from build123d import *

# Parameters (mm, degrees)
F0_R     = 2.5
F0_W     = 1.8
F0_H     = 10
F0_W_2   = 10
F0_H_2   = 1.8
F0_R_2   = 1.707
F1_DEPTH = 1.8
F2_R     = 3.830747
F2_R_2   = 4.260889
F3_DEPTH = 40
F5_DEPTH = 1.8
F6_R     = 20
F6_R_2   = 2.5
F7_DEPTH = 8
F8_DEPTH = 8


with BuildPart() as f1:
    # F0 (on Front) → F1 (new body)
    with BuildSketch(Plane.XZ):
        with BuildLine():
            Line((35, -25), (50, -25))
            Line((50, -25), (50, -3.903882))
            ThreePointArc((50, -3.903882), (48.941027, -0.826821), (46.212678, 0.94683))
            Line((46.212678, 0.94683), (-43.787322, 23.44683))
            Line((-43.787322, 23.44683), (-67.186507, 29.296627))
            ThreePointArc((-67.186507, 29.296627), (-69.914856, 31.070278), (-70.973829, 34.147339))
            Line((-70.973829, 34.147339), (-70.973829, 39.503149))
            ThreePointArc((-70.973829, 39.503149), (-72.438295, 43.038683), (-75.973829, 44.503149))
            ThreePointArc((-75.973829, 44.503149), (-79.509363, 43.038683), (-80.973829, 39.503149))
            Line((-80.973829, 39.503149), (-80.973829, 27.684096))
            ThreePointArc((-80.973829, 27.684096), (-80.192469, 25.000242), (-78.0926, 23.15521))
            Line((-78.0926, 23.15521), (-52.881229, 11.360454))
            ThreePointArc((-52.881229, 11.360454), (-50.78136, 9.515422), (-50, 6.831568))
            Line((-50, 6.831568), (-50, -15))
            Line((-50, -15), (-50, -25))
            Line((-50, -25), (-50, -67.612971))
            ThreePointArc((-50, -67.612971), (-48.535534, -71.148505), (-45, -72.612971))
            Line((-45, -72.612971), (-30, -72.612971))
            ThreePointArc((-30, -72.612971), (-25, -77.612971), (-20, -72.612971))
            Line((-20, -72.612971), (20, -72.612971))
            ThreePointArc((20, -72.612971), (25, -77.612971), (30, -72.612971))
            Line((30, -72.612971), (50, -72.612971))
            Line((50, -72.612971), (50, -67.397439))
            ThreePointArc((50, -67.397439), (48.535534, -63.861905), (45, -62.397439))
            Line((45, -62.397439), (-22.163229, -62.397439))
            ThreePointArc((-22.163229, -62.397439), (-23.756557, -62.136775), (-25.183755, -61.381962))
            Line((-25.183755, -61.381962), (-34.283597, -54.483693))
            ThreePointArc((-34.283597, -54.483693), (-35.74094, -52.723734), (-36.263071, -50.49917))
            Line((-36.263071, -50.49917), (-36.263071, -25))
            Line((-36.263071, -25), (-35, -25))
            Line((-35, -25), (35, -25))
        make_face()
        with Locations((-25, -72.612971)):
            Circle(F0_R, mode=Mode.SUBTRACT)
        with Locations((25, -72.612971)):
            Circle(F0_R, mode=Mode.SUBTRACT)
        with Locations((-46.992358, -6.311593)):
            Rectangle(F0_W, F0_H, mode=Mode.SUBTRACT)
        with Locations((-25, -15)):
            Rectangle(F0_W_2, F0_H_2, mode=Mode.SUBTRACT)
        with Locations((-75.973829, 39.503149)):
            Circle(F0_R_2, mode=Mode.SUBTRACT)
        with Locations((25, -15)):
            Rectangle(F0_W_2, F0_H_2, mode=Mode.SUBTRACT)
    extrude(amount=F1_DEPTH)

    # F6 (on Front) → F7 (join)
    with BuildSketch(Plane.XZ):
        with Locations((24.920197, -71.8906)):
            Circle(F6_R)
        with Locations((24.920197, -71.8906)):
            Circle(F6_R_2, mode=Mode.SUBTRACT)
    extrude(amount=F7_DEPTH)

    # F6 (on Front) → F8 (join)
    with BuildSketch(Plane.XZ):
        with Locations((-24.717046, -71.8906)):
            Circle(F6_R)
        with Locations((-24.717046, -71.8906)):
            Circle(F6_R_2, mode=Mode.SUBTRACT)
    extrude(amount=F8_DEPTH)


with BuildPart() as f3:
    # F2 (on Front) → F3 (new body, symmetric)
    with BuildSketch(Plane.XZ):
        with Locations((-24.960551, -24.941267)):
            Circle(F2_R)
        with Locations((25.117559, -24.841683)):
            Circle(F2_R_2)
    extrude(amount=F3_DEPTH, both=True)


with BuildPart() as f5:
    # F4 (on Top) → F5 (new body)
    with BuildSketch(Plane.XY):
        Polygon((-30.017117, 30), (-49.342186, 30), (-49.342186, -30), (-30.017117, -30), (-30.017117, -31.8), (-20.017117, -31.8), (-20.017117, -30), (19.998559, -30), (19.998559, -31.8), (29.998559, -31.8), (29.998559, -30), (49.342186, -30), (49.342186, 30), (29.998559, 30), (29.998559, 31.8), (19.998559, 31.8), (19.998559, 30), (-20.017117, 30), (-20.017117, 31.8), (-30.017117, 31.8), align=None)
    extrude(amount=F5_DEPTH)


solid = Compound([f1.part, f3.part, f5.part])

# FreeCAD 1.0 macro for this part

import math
import FreeCAD as App
import Part
import Sketcher

V = App.Vector


def add_polygon(sketch, points):
    """Adds a closed chain of lines whose ends are joined by coincident constraints."""
    first, n = sketch.GeometryCount, len(points)
    for a, b in zip(points, points[1:] + points[:1]):
        sketch.addGeometry(Part.LineSegment(App.Vector(*a, 0), App.Vector(*b, 0)), False)
    for i in range(n):
        sketch.addConstraint(Sketcher.Constraint("Coincident", first + i, 2, first + (i + 1) % n, 1))

doc = App.newDocument("Part")
body = doc.addObject("PartDesign::Body", "Body")

sketch1 = body.newObject("Sketcher::SketchObject", "Sketch")
sketch1.AttachmentSupport = (doc.getObject("XZ_Plane"), [""])
sketch1.MapMode = "FlatFace"
sketch1.addGeometry(Part.LineSegment(V(50, -25, 0), V(50, -3.9, 0)), False)
sketch1.addGeometry(Part.ArcOfCircle(Part.Circle(V(45, -3.9, 0), V(0, 0, 1), 5), math.radians(0), math.radians(76)), False)
sketch1.addGeometry(Part.LineSegment(V(46.2, 0.9, 0), V(-43.8, 23.4, 0)), False)
sketch1.addGeometry(Part.LineSegment(V(-43.8, 23.4, 0), V(-67.2, 29.3, 0)), False)
sketch1.addGeometry(Part.ArcOfCircle(Part.Circle(V(-66, 34.1, 0), V(0, 0, 1), 5), math.radians(-180), math.radians(-104)), False)
sketch1.addGeometry(Part.LineSegment(V(-71, 34.1, 0), V(-71, 39.5, 0)), False)
sketch1.addGeometry(Part.ArcOfCircle(Part.Circle(V(-76, 39.5, 0), V(0, 0, 1), 5), math.radians(0), math.radians(90)), False)
sketch1.addGeometry(Part.ArcOfCircle(Part.Circle(V(-76, 39.5, 0), V(0, 0, 1), 5), math.radians(90), math.radians(180)), False)
sketch1.addGeometry(Part.LineSegment(V(-81, 39.5, 0), V(-81, 27.7, 0)), False)
sketch1.addGeometry(Part.ArcOfCircle(Part.Circle(V(-76, 27.7, 0), V(0, 0, 1), 5), math.radians(-180), math.radians(-115)), False)
sketch1.addGeometry(Part.LineSegment(V(-78.1, 23.2, 0), V(-52.9, 11.4, 0)), False)
sketch1.addGeometry(Part.ArcOfCircle(Part.Circle(V(-55, 6.8, 0), V(0, 0, 1), 5), math.radians(0), math.radians(65)), False)
sketch1.addGeometry(Part.LineSegment(V(-50, 6.8, 0), V(-50, -67.6, 0)), False)
sketch1.addGeometry(Part.ArcOfCircle(Part.Circle(V(-45, -67.6, 0), V(0, 0, 1), 5), math.radians(180), math.radians(270)), False)
sketch1.addGeometry(Part.LineSegment(V(-45, -72.6, 0), V(-30, -72.6, 0)), False)
sketch1.addGeometry(Part.ArcOfCircle(Part.Circle(V(-25, -72.6, 0), V(0, 0, 1), 5), math.radians(180), math.radians(360)), False)
sketch1.addGeometry(Part.LineSegment(V(-20, -72.6, 0), V(20, -72.6, 0)), False)
sketch1.addGeometry(Part.ArcOfCircle(Part.Circle(V(25, -72.6, 0), V(0, 0, 1), 5), math.radians(180), math.radians(360)), False)
sketch1.addGeometry(Part.LineSegment(V(30, -72.6, 0), V(50, -72.6, 0)), False)
sketch1.addGeometry(Part.LineSegment(V(50, -72.6, 0), V(50, -67.4, 0)), False)
sketch1.addGeometry(Part.ArcOfCircle(Part.Circle(V(45, -67.4, 0), V(0, 0, 1), 5), math.radians(0), math.radians(90)), False)
sketch1.addGeometry(Part.LineSegment(V(45, -62.4, 0), V(-22.2, -62.4, 0)), False)
sketch1.addGeometry(Part.ArcOfCircle(Part.Circle(V(-22.2, -57.4, 0), V(0, 0, 1), 5), math.radians(-127), math.radians(-90)), False)
sketch1.addGeometry(Part.LineSegment(V(-25.2, -61.4, 0), V(-34.3, -54.5, 0)), False)
sketch1.addGeometry(Part.ArcOfCircle(Part.Circle(V(-31.3, -50.5, 0), V(0, 0, 1), 5), math.radians(-180), math.radians(-127)), False)
sketch1.addGeometry(Part.LineSegment(V(-36.3, -50.5, 0), V(-36.3, -25, 0)), False)
sketch1.addGeometry(Part.LineSegment(V(-36.3, -25, 0), V(50, -25, 0)), False)
sketch1.addGeometry(Part.Circle(V(-25, -72.6, 0), V(0, 0, 1), 2.5), False)
sketch1.addGeometry(Part.Circle(V(25, -72.6, 0), V(0, 0, 1), 2.5), False)
add_polygon(sketch1, [(-46.1, -11.3), (-47.9, -11.3), (-47.9, -1.3), (-46.1, -1.3)])
add_polygon(sketch1, [(-20, -15.9), (-30, -15.9), (-30, -14.1), (-20, -14.1)])
sketch1.addGeometry(Part.Circle(V(-76, 39.5, 0), V(0, 0, 1), 1.7), False)
add_polygon(sketch1, [(30, -15.9), (20, -15.9), (20, -14.1), (30, -14.1)])
sketch1.addConstraint(Sketcher.Constraint("Tangent", 0, 2, 1, 1))
sketch1.addConstraint(Sketcher.Constraint("Tangent", 1, 2, 2, 1))
sketch1.addConstraint(Sketcher.Constraint("Coincident", 2, 2, 3, 1))
sketch1.addConstraint(Sketcher.Constraint("Tangent", 3, 2, 4, 2))
sketch1.addConstraint(Sketcher.Constraint("Tangent", 4, 1, 5, 1))
sketch1.addConstraint(Sketcher.Constraint("Tangent", 5, 2, 6, 1))
sketch1.addConstraint(Sketcher.Constraint("Tangent", 6, 2, 7, 1))
sketch1.addConstraint(Sketcher.Constraint("Tangent", 7, 2, 8, 1))
sketch1.addConstraint(Sketcher.Constraint("Tangent", 8, 2, 9, 1))
sketch1.addConstraint(Sketcher.Constraint("Tangent", 9, 2, 10, 1))
sketch1.addConstraint(Sketcher.Constraint("Tangent", 10, 2, 11, 2))
sketch1.addConstraint(Sketcher.Constraint("Tangent", 11, 1, 12, 1))
sketch1.addConstraint(Sketcher.Constraint("Tangent", 12, 2, 13, 1))
sketch1.addConstraint(Sketcher.Constraint("Tangent", 13, 2, 14, 1))
sketch1.addConstraint(Sketcher.Constraint("Coincident", 14, 2, 15, 1))
sketch1.addConstraint(Sketcher.Constraint("Coincident", 15, 2, 16, 1))
sketch1.addConstraint(Sketcher.Constraint("Coincident", 16, 2, 17, 1))
sketch1.addConstraint(Sketcher.Constraint("Coincident", 17, 2, 18, 1))
sketch1.addConstraint(Sketcher.Constraint("Coincident", 18, 2, 19, 1))
sketch1.addConstraint(Sketcher.Constraint("Tangent", 19, 2, 20, 1))
sketch1.addConstraint(Sketcher.Constraint("Tangent", 20, 2, 21, 1))
sketch1.addConstraint(Sketcher.Constraint("Tangent", 21, 2, 22, 2))
sketch1.addConstraint(Sketcher.Constraint("Tangent", 22, 1, 23, 1))
sketch1.addConstraint(Sketcher.Constraint("Tangent", 23, 2, 24, 2))
sketch1.addConstraint(Sketcher.Constraint("Tangent", 24, 1, 25, 1))
sketch1.addConstraint(Sketcher.Constraint("Coincident", 25, 2, 26, 1))
sketch1.addConstraint(Sketcher.Constraint("Coincident", 26, 2, 0, 1))
sketch1.addConstraint(Sketcher.Constraint("Vertical", 0))
sketch1.addConstraint(Sketcher.Constraint("Vertical", 5))
sketch1.addConstraint(Sketcher.Constraint("Vertical", 8))
sketch1.addConstraint(Sketcher.Constraint("Vertical", 12))
sketch1.addConstraint(Sketcher.Constraint("Horizontal", 14))
sketch1.addConstraint(Sketcher.Constraint("Horizontal", 16))
sketch1.addConstraint(Sketcher.Constraint("Horizontal", 18))
sketch1.addConstraint(Sketcher.Constraint("Vertical", 19))
sketch1.addConstraint(Sketcher.Constraint("Horizontal", 21))
sketch1.addConstraint(Sketcher.Constraint("Vertical", 25))
sketch1.addConstraint(Sketcher.Constraint("Horizontal", 26))
sketch1.addConstraint(Sketcher.Constraint("Horizontal", 29))
sketch1.addConstraint(Sketcher.Constraint("Vertical", 30))
sketch1.addConstraint(Sketcher.Constraint("Horizontal", 31))
sketch1.addConstraint(Sketcher.Constraint("Vertical", 32))
sketch1.addConstraint(Sketcher.Constraint("Horizontal", 33))
sketch1.addConstraint(Sketcher.Constraint("Vertical", 34))
sketch1.addConstraint(Sketcher.Constraint("Horizontal", 35))
sketch1.addConstraint(Sketcher.Constraint("Vertical", 36))
sketch1.addConstraint(Sketcher.Constraint("Horizontal", 38))
sketch1.addConstraint(Sketcher.Constraint("Vertical", 39))
sketch1.addConstraint(Sketcher.Constraint("Horizontal", 40))
sketch1.addConstraint(Sketcher.Constraint("Vertical", 41))
sketch1.addConstraint(Sketcher.Constraint("Coincident", 27, 3, 15, 3))
sketch1.addConstraint(Sketcher.Constraint("Coincident", 28, 3, 17, 3))
sketch1.addConstraint(Sketcher.Constraint("Coincident", 37, 3, 6, 3))
sketch1.addConstraint(Sketcher.Constraint("Equal", 1, 4))
sketch1.addConstraint(Sketcher.Constraint("Equal", 4, 6))
sketch1.addConstraint(Sketcher.Constraint("Equal", 6, 7))
sketch1.addConstraint(Sketcher.Constraint("Equal", 9, 11))
sketch1.addConstraint(Sketcher.Constraint("Equal", 7, 13))
sketch1.addConstraint(Sketcher.Constraint("Equal", 13, 15))
sketch1.addConstraint(Sketcher.Constraint("Equal", 15, 17))
sketch1.addConstraint(Sketcher.Constraint("Equal", 17, 20))
sketch1.addConstraint(Sketcher.Constraint("Equal", 20, 22))
sketch1.addConstraint(Sketcher.Constraint("Equal", 27, 28))
sketch1.addConstraint(Sketcher.Constraint("Symmetric", 15, 3, 17, 3, -2))
sketch1.addConstraint(Sketcher.Constraint("Symmetric", 36, 2, 38, 2, -2))
sketch1.addConstraint(Sketcher.Constraint("Symmetric", 34, 2, 40, 2, -2))
sketch1.addConstraint(Sketcher.Constraint("Parallel", 2, 3))
sketch1.addConstraint(Sketcher.Constraint("Horizontal", 28, 3, 13, 2))
sketch1.addConstraint(Sketcher.Constraint("Horizontal", 14, 2, 15, 2))
sketch1.addConstraint(Sketcher.Constraint("Horizontal", 16, 2, 17, 2))
sketch1.addConstraint(Sketcher.Constraint("Vertical", 6, 3, 9, 3))
sketch1.addConstraint(Sketcher.Constraint("Vertical", 1, 3, 20, 3))
sketch1.addConstraint(Sketcher.Constraint("Vertical", 37, 3, 6, 2))
sketch1.addConstraint(Sketcher.Constraint("Vertical", 14, 2, 33, 2))
sketch1.addConstraint(Sketcher.Constraint("Vertical", 15, 2, 35, 2))
sketch1.addConstraint(Sketcher.Constraint("Equal", 40, 30))
sketch1.addConstraint(Sketcher.Constraint("Equal", 31, 34))
sketch1.addConstraint(Sketcher.Constraint("Diameter", 27, 5.0))
sketch1.addConstraint(Sketcher.Constraint("Radius", 1, 4.999999))
sketch1.addConstraint(Sketcher.Constraint("DistanceX", 14, 1, 14, 2, 15.0))
sketch1.addConstraint(Sketcher.Constraint("DistanceX", 16, 1, 16, 2, 40.0))
sketch1.addConstraint(Sketcher.Constraint("DistanceX", 18, 1, 18, 2, 20.0))
sketch1.addConstraint(Sketcher.Constraint("Diameter", 37, 3.414))
sketch1.addConstraint(Sketcher.Constraint("DistanceX", 29, 2, 29, 1, 1.8))
sketch1.addConstraint(Sketcher.Constraint("DistanceY", 25, 2, -1, 1, 25.0))
sketch1.addConstraint(Sketcher.Constraint("DistanceY", 33, 2, -1, 1, 15.9))
sketch1.addConstraint(Sketcher.Constraint("Radius", 24, 5.000004))
sketch1.addConstraint(Sketcher.Constraint("DistanceX", 21, 2, 21, 1, 67.163229))
sketch1.addConstraint(Sketcher.Constraint("DistanceX", 26, 1, 26, 2, 86.263071))
sketch1.addConstraint(Sketcher.Constraint("DistanceY", 0, 1, 0, 2, 21.096118))
sketch1.addConstraint(Sketcher.Constraint("DistanceY", 5, 1, 5, 2, 5.35581))
sketch1.addConstraint(Sketcher.Constraint("DistanceY", 12, 2, 12, 1, 74.444539))
sketch1.addConstraint(Sketcher.Constraint("DistanceY", 19, 1, 19, 2, 5.215532))
sketch1.addConstraint(Sketcher.Constraint("DistanceY", 25, 1, 25, 2, 25.49917))
sketch1.addConstraint(Sketcher.Constraint("DistanceX", 9, 2, -1, 1, 78.0926))
sketch1.addConstraint(Sketcher.Constraint("DistanceY", 17, 3, 1, 2, 73.559801))
sketch1.addConstraint(Sketcher.Constraint("Distance", 3, 24.119328))
sketch1.addConstraint(Sketcher.Constraint("DistanceY", 8, 2, 8, 1, 11.819053))
sketch1.addConstraint(Sketcher.Constraint("DistanceX", 4, 3, -1, 1, 65.97383))
sketch1.addConstraint(Sketcher.Constraint("DistanceX", 29, 2, -1, 1, 47.892358))
sketch1.addConstraint(Sketcher.Constraint("DistanceY", 29, 2, 11, 1, 18.143161))
pad1 = body.newObject("PartDesign::Pad", "Pad")
pad1.Profile = sketch1
pad1.Length = 1.8

sketch2 = body.newObject("Sketcher::SketchObject", "Sketch001")
sketch2.AttachmentSupport = (doc.getObject("XZ_Plane"), [""])
sketch2.MapMode = "FlatFace"
sketch2.addGeometry(Part.Circle(V(24.9, -71.9, 0), V(0, 0, 1), 20), False)
sketch2.addGeometry(Part.Circle(V(24.9, -71.9, 0), V(0, 0, 1), 2.5), False)
sketch2.addConstraint(Sketcher.Constraint("Coincident", 1, 3, 0, 3))
sketch2.addConstraint(Sketcher.Constraint("Diameter", 0, 40.0))
sketch2.addConstraint(Sketcher.Constraint("Diameter", 1, 5.0))
sketch2.addConstraint(Sketcher.Constraint("DistanceY", 0, 3, -1, 1, 71.8906))
sketch2.addConstraint(Sketcher.Constraint("DistanceX", -1, 1, 0, 3, 24.920197))
pad2 = body.newObject("PartDesign::Pad", "Pad001")
pad2.Profile = sketch2
pad2.Length = 8

sketch3 = body.newObject("Sketcher::SketchObject", "Sketch002")
sketch3.AttachmentSupport = (doc.getObject("XZ_Plane"), [""])
sketch3.MapMode = "FlatFace"
sketch3.addGeometry(Part.Circle(V(-24.7, -71.9, 0), V(0, 0, 1), 20), False)
sketch3.addGeometry(Part.Circle(V(-24.7, -71.9, 0), V(0, 0, 1), 2.5), False)
sketch3.addConstraint(Sketcher.Constraint("Coincident", 1, 3, 0, 3))
sketch3.addConstraint(Sketcher.Constraint("Diameter", 0, 40.0))
sketch3.addConstraint(Sketcher.Constraint("Diameter", 1, 5.0))
sketch3.addConstraint(Sketcher.Constraint("DistanceY", 0, 3, -1, 1, 71.8906))
sketch3.addConstraint(Sketcher.Constraint("DistanceX", 0, 3, -1, 1, 24.717046))
pad3 = body.newObject("PartDesign::Pad", "Pad002")
pad3.Profile = sketch3
pad3.Length = 8
body2 = doc.addObject("PartDesign::Body", "Body001")
body2.AllowCompound = True

sketch4 = body2.newObject("Sketcher::SketchObject", "Sketch003")
sketch4.AttachmentSupport = (doc.getObject("XZ_Plane001"), [""])
sketch4.MapMode = "FlatFace"
sketch4.addGeometry(Part.Circle(V(-25, -24.9, 0), V(0, 0, 1), 3.8), False)
sketch4.addGeometry(Part.Circle(V(25.1, -24.8, 0), V(0, 0, 1), 4.3), False)
sketch4.addConstraint(Sketcher.Constraint("Diameter", 0, 7.661494))
sketch4.addConstraint(Sketcher.Constraint("Diameter", 1, 8.521778))
sketch4.addConstraint(Sketcher.Constraint("DistanceX", 0, 3, -1, 1, 24.960551))
sketch4.addConstraint(Sketcher.Constraint("DistanceX", -1, 1, 1, 3, 25.117559))
sketch4.addConstraint(Sketcher.Constraint("DistanceY", 0, 3, -1, 1, 24.941267))
sketch4.addConstraint(Sketcher.Constraint("DistanceY", 1, 3, -1, 1, 24.841683))
pad4 = body2.newObject("PartDesign::Pad", "Pad003")
pad4.Profile = sketch4
pad4.Length = 80
pad4.Midplane = True
body3 = doc.addObject("PartDesign::Body", "Body002")

sketch5 = body3.newObject("Sketcher::SketchObject", "Sketch004")
sketch5.AttachmentSupport = (doc.getObject("XY_Plane002"), [""])
sketch5.MapMode = "FlatFace"
add_polygon(sketch5, [(-30, 30), (-49.3, 30), (-49.3, -30), (-30, -30), (-30, -31.8), (-20, -31.8), (-20, -30), (20, -30), (20, -31.8), (30, -31.8), (30, -30), (49.3, -30), (49.3, 30), (30, 30), (30, 31.8), (20, 31.8), (20, 30), (-20, 30), (-20, 31.8), (-30, 31.8)])
sketch5.addConstraint(Sketcher.Constraint("Horizontal", 0))
sketch5.addConstraint(Sketcher.Constraint("Vertical", 1))
sketch5.addConstraint(Sketcher.Constraint("Horizontal", 2))
sketch5.addConstraint(Sketcher.Constraint("Vertical", 3))
sketch5.addConstraint(Sketcher.Constraint("Horizontal", 4))
sketch5.addConstraint(Sketcher.Constraint("Vertical", 5))
sketch5.addConstraint(Sketcher.Constraint("Horizontal", 6))
sketch5.addConstraint(Sketcher.Constraint("Vertical", 7))
sketch5.addConstraint(Sketcher.Constraint("Horizontal", 8))
sketch5.addConstraint(Sketcher.Constraint("Vertical", 9))
sketch5.addConstraint(Sketcher.Constraint("Horizontal", 10))
sketch5.addConstraint(Sketcher.Constraint("Vertical", 11))
sketch5.addConstraint(Sketcher.Constraint("Horizontal", 12))
sketch5.addConstraint(Sketcher.Constraint("Vertical", 13))
sketch5.addConstraint(Sketcher.Constraint("Horizontal", 14))
sketch5.addConstraint(Sketcher.Constraint("Vertical", 15))
sketch5.addConstraint(Sketcher.Constraint("Horizontal", 16))
sketch5.addConstraint(Sketcher.Constraint("Vertical", 17))
sketch5.addConstraint(Sketcher.Constraint("Horizontal", 18))
sketch5.addConstraint(Sketcher.Constraint("Vertical", 19))
sketch5.addConstraint(Sketcher.Constraint("Symmetric", 0, 2, 10, 2, -1, 1))
sketch5.addConstraint(Sketcher.Constraint("Symmetric", 9, 2, 12, 2, -1))
sketch5.addConstraint(Sketcher.Constraint("Symmetric", 7, 2, 14, 2, -1))
sketch5.addConstraint(Sketcher.Constraint("Symmetric", 5, 2, 16, 2, -1))
sketch5.addConstraint(Sketcher.Constraint("Symmetric", 3, 2, 18, 2, -1))
sketch5.addConstraint(Sketcher.Constraint("Horizontal", 2, 2, 5, 2))
sketch5.addConstraint(Sketcher.Constraint("Horizontal", 4, 2, 7, 2))
sketch5.addConstraint(Sketcher.Constraint("Horizontal", 6, 2, 9, 2))
sketch5.addConstraint(Sketcher.Constraint("Equal", 4, 8))
sketch5.addConstraint(Sketcher.Constraint("DistanceX", 4, 1, 4, 2, 10.0))
sketch5.addConstraint(Sketcher.Constraint("DistanceY", 1, 2, 1, 1, 60.0))
sketch5.addConstraint(Sketcher.Constraint("DistanceY", 3, 2, 3, 1, 1.8))
sketch5.addConstraint(Sketcher.Constraint("DistanceX", 0, 2, 0, 1, 19.325069))
sketch5.addConstraint(Sketcher.Constraint("DistanceX", 6, 1, 6, 2, 40.015676))
sketch5.addConstraint(Sketcher.Constraint("DistanceX", 10, 1, 10, 2, 19.343627))
pad5 = body3.newObject("PartDesign::Pad", "Pad004")
pad5.Profile = sketch5
pad5.Length = 1.8

doc.recompute()
